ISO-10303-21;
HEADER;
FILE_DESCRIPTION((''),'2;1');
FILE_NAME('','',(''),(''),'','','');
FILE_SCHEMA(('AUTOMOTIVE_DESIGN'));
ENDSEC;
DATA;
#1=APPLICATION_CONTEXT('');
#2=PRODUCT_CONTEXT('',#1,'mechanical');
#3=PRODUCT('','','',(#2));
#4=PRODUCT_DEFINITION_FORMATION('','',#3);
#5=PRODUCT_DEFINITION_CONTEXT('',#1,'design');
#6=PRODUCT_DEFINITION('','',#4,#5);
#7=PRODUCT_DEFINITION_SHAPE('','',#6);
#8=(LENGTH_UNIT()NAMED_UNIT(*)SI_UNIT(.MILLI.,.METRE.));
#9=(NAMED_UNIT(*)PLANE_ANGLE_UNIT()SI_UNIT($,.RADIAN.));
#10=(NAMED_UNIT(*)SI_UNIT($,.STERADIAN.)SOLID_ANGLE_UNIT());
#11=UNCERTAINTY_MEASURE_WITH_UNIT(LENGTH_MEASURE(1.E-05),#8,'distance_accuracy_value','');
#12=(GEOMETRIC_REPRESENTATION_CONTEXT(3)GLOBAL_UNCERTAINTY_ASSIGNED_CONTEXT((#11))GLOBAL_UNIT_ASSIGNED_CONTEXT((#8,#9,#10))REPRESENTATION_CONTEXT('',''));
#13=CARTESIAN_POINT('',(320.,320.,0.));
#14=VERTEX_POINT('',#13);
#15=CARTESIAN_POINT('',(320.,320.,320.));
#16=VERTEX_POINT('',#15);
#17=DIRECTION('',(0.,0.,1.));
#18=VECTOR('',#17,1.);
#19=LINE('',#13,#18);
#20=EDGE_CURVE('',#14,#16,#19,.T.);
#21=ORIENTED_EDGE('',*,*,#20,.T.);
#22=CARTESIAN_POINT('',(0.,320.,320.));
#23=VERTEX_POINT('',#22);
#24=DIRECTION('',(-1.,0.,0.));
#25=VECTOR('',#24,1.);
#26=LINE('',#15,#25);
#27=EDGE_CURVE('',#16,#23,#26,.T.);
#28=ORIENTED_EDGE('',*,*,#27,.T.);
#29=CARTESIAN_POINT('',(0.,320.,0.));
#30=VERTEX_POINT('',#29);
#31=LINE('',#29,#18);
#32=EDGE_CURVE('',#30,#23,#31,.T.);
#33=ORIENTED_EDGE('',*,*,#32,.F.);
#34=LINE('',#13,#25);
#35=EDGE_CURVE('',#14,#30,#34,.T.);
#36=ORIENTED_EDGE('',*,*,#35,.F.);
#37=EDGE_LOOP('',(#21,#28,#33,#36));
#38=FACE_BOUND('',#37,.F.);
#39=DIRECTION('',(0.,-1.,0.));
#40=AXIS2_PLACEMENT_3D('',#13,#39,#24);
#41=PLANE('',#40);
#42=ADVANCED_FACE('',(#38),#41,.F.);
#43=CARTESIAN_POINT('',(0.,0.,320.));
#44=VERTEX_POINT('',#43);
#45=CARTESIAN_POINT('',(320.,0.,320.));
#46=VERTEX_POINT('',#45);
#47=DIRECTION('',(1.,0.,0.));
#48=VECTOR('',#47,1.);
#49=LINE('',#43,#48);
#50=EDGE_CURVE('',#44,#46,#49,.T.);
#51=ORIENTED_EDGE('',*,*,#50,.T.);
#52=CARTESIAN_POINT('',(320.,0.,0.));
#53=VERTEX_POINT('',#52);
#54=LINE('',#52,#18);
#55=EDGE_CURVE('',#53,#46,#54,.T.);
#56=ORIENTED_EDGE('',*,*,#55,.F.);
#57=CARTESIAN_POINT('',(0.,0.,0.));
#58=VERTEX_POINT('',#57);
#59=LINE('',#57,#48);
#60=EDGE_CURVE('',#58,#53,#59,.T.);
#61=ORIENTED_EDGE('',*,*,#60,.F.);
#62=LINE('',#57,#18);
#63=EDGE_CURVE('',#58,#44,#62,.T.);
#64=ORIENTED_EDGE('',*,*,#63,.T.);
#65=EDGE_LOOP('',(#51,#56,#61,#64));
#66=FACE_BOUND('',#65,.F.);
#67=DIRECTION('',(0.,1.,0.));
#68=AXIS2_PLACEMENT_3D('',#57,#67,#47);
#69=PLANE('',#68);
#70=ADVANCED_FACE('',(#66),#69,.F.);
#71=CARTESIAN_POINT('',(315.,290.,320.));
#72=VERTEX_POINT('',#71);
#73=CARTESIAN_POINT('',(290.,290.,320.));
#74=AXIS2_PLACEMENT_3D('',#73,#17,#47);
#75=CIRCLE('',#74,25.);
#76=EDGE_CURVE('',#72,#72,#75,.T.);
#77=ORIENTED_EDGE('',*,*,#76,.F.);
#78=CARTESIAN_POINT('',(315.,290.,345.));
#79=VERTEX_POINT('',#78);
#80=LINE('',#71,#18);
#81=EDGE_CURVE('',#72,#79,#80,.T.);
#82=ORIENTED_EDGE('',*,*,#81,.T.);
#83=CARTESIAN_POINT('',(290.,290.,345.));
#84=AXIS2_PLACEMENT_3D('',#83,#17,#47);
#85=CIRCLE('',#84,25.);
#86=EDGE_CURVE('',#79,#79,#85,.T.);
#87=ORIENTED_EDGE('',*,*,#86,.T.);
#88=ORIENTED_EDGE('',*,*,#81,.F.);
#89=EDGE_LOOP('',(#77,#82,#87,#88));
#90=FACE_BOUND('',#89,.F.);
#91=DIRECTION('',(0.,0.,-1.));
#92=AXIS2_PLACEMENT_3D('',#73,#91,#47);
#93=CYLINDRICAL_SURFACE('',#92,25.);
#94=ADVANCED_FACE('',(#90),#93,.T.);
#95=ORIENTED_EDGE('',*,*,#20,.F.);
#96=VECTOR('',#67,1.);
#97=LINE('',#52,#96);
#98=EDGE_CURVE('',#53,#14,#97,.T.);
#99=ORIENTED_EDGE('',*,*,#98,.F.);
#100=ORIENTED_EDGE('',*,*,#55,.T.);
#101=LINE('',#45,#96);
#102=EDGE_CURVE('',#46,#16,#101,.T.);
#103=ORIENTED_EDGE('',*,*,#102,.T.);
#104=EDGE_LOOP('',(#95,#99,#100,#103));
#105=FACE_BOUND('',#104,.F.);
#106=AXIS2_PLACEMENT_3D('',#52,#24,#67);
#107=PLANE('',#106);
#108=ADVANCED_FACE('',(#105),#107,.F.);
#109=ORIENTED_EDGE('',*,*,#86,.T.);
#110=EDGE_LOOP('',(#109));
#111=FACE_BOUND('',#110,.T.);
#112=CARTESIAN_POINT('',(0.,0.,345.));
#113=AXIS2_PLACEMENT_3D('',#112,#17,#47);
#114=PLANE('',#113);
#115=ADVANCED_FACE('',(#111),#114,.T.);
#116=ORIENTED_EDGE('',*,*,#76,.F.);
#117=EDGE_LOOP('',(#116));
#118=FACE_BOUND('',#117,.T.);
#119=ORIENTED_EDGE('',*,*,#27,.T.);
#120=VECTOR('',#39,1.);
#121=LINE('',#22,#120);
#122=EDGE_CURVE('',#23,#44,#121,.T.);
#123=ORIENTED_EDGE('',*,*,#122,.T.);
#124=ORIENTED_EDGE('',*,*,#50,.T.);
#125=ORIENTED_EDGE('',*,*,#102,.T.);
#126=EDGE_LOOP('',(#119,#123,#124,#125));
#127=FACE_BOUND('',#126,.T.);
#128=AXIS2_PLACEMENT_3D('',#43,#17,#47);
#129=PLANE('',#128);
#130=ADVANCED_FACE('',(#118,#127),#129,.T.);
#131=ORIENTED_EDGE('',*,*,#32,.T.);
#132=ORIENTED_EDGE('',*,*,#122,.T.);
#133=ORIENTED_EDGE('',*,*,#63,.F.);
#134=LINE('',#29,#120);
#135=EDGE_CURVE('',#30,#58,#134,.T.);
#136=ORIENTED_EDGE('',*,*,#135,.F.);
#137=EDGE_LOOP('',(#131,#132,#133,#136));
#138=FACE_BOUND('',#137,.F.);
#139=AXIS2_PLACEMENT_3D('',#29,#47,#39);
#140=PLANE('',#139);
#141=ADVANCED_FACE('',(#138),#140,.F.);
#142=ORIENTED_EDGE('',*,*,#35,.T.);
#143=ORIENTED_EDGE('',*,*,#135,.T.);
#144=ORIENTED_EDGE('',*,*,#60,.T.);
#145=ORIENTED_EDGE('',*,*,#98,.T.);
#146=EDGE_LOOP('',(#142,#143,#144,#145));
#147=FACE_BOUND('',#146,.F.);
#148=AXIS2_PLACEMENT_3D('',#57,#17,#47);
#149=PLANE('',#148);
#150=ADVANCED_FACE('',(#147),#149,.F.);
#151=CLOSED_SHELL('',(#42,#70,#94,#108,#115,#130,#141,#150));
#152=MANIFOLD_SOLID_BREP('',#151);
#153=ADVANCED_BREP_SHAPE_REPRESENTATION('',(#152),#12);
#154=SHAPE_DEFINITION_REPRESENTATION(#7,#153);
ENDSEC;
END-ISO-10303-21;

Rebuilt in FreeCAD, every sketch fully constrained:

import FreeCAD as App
import Part
import Sketcher

doc = App.newDocument("Part")
params = doc.addObject("Spreadsheet::Sheet", "Params")
for row, (alias, value) in enumerate([
    ("sketch1_width", "320 mm"),
    ("pad1_length", "320 mm"),
    ("sketch2_diameter", "50 mm"),
    ("pad2_length", "25 mm"),
], start=1):
    params.set(f"A{row}", alias)
    params.set(f"B{row}", "=" + value)
    params.setAlias(f"B{row}", alias)

body = doc.addObject("PartDesign::Body", "Body")

# Sketch on XY plane
sketch1 = body.newObject("Sketcher::SketchObject", "Sketch")
sketch1.AttachmentSupport = (doc.getObject("XY_Plane"), [""])
sketch1.MapMode = "FlatFace"
sketch1.addGeometry(Part.LineSegment(App.Vector(0, 320, 0), App.Vector(0, 0, 0)), False)
sketch1.addGeometry(Part.LineSegment(App.Vector(0, 0, 0), App.Vector(320, 0, 0)), False)
sketch1.addGeometry(Part.LineSegment(App.Vector(320, 0, 0), App.Vector(320, 320, 0)), False)
sketch1.addGeometry(Part.LineSegment(App.Vector(320, 320, 0), App.Vector(0, 320, 0)), False)
sketch1.addConstraint(Sketcher.Constraint("Coincident", 0, 2, 1, 1))
sketch1.addConstraint(Sketcher.Constraint("Coincident", 1, 2, 2, 1))
sketch1.addConstraint(Sketcher.Constraint("Coincident", 2, 2, 3, 1))
sketch1.addConstraint(Sketcher.Constraint("Coincident", 3, 2, 0, 1))
sketch1.addConstraint(Sketcher.Constraint("Vertical", 0))
sketch1.addConstraint(Sketcher.Constraint("Horizontal", 1))
sketch1.addConstraint(Sketcher.Constraint("Vertical", 2))
sketch1.addConstraint(Sketcher.Constraint("Horizontal", 3))
sketch1.addConstraint(Sketcher.Constraint("Coincident", 0, 2, -1, 1))
sketch1.addConstraint(Sketcher.Constraint("Equal", 3, 0))
sketch1.addConstraint(Sketcher.Constraint("DistanceX", 1, 1, 1, 2, 320.0))
sketch1.setExpression("Constraints[10]", "Params.sketch1_width")
pad1 = body.newObject("PartDesign::Pad", "Pad")
pad1.Profile = sketch1
pad1.setExpression("Length", "Params.pad1_length")

# Sketch on XY plane
sketch2 = body.newObject("Sketcher::SketchObject", "Sketch001")
sketch2.AttachmentSupport = (doc.getObject("XY_Plane"), [""])
sketch2.MapMode = "FlatFace"
sketch2.AttachmentOffset = App.Placement(App.Vector(0, 0, 320), App.Rotation())
sketch2.addGeometry(Part.Circle(App.Vector(290, 290, 0), App.Vector(0, 0, 1), 25), False)
sketch2.addConstraint(Sketcher.Constraint("Diameter", 0, 50.0))
sketch2.addConstraint(Sketcher.Constraint("DistanceX", -1, 1, 0, 3, 290.0))
sketch2.addConstraint(Sketcher.Constraint("DistanceY", -1, 1, 0, 3, 290.0))
sketch2.setExpression("Constraints[0]", "Params.sketch2_diameter")
pad2 = body.newObject("PartDesign::Pad", "Pad001")
pad2.Profile = sketch2
pad2.setExpression("Length", "Params.pad2_length")

doc.recompute()
